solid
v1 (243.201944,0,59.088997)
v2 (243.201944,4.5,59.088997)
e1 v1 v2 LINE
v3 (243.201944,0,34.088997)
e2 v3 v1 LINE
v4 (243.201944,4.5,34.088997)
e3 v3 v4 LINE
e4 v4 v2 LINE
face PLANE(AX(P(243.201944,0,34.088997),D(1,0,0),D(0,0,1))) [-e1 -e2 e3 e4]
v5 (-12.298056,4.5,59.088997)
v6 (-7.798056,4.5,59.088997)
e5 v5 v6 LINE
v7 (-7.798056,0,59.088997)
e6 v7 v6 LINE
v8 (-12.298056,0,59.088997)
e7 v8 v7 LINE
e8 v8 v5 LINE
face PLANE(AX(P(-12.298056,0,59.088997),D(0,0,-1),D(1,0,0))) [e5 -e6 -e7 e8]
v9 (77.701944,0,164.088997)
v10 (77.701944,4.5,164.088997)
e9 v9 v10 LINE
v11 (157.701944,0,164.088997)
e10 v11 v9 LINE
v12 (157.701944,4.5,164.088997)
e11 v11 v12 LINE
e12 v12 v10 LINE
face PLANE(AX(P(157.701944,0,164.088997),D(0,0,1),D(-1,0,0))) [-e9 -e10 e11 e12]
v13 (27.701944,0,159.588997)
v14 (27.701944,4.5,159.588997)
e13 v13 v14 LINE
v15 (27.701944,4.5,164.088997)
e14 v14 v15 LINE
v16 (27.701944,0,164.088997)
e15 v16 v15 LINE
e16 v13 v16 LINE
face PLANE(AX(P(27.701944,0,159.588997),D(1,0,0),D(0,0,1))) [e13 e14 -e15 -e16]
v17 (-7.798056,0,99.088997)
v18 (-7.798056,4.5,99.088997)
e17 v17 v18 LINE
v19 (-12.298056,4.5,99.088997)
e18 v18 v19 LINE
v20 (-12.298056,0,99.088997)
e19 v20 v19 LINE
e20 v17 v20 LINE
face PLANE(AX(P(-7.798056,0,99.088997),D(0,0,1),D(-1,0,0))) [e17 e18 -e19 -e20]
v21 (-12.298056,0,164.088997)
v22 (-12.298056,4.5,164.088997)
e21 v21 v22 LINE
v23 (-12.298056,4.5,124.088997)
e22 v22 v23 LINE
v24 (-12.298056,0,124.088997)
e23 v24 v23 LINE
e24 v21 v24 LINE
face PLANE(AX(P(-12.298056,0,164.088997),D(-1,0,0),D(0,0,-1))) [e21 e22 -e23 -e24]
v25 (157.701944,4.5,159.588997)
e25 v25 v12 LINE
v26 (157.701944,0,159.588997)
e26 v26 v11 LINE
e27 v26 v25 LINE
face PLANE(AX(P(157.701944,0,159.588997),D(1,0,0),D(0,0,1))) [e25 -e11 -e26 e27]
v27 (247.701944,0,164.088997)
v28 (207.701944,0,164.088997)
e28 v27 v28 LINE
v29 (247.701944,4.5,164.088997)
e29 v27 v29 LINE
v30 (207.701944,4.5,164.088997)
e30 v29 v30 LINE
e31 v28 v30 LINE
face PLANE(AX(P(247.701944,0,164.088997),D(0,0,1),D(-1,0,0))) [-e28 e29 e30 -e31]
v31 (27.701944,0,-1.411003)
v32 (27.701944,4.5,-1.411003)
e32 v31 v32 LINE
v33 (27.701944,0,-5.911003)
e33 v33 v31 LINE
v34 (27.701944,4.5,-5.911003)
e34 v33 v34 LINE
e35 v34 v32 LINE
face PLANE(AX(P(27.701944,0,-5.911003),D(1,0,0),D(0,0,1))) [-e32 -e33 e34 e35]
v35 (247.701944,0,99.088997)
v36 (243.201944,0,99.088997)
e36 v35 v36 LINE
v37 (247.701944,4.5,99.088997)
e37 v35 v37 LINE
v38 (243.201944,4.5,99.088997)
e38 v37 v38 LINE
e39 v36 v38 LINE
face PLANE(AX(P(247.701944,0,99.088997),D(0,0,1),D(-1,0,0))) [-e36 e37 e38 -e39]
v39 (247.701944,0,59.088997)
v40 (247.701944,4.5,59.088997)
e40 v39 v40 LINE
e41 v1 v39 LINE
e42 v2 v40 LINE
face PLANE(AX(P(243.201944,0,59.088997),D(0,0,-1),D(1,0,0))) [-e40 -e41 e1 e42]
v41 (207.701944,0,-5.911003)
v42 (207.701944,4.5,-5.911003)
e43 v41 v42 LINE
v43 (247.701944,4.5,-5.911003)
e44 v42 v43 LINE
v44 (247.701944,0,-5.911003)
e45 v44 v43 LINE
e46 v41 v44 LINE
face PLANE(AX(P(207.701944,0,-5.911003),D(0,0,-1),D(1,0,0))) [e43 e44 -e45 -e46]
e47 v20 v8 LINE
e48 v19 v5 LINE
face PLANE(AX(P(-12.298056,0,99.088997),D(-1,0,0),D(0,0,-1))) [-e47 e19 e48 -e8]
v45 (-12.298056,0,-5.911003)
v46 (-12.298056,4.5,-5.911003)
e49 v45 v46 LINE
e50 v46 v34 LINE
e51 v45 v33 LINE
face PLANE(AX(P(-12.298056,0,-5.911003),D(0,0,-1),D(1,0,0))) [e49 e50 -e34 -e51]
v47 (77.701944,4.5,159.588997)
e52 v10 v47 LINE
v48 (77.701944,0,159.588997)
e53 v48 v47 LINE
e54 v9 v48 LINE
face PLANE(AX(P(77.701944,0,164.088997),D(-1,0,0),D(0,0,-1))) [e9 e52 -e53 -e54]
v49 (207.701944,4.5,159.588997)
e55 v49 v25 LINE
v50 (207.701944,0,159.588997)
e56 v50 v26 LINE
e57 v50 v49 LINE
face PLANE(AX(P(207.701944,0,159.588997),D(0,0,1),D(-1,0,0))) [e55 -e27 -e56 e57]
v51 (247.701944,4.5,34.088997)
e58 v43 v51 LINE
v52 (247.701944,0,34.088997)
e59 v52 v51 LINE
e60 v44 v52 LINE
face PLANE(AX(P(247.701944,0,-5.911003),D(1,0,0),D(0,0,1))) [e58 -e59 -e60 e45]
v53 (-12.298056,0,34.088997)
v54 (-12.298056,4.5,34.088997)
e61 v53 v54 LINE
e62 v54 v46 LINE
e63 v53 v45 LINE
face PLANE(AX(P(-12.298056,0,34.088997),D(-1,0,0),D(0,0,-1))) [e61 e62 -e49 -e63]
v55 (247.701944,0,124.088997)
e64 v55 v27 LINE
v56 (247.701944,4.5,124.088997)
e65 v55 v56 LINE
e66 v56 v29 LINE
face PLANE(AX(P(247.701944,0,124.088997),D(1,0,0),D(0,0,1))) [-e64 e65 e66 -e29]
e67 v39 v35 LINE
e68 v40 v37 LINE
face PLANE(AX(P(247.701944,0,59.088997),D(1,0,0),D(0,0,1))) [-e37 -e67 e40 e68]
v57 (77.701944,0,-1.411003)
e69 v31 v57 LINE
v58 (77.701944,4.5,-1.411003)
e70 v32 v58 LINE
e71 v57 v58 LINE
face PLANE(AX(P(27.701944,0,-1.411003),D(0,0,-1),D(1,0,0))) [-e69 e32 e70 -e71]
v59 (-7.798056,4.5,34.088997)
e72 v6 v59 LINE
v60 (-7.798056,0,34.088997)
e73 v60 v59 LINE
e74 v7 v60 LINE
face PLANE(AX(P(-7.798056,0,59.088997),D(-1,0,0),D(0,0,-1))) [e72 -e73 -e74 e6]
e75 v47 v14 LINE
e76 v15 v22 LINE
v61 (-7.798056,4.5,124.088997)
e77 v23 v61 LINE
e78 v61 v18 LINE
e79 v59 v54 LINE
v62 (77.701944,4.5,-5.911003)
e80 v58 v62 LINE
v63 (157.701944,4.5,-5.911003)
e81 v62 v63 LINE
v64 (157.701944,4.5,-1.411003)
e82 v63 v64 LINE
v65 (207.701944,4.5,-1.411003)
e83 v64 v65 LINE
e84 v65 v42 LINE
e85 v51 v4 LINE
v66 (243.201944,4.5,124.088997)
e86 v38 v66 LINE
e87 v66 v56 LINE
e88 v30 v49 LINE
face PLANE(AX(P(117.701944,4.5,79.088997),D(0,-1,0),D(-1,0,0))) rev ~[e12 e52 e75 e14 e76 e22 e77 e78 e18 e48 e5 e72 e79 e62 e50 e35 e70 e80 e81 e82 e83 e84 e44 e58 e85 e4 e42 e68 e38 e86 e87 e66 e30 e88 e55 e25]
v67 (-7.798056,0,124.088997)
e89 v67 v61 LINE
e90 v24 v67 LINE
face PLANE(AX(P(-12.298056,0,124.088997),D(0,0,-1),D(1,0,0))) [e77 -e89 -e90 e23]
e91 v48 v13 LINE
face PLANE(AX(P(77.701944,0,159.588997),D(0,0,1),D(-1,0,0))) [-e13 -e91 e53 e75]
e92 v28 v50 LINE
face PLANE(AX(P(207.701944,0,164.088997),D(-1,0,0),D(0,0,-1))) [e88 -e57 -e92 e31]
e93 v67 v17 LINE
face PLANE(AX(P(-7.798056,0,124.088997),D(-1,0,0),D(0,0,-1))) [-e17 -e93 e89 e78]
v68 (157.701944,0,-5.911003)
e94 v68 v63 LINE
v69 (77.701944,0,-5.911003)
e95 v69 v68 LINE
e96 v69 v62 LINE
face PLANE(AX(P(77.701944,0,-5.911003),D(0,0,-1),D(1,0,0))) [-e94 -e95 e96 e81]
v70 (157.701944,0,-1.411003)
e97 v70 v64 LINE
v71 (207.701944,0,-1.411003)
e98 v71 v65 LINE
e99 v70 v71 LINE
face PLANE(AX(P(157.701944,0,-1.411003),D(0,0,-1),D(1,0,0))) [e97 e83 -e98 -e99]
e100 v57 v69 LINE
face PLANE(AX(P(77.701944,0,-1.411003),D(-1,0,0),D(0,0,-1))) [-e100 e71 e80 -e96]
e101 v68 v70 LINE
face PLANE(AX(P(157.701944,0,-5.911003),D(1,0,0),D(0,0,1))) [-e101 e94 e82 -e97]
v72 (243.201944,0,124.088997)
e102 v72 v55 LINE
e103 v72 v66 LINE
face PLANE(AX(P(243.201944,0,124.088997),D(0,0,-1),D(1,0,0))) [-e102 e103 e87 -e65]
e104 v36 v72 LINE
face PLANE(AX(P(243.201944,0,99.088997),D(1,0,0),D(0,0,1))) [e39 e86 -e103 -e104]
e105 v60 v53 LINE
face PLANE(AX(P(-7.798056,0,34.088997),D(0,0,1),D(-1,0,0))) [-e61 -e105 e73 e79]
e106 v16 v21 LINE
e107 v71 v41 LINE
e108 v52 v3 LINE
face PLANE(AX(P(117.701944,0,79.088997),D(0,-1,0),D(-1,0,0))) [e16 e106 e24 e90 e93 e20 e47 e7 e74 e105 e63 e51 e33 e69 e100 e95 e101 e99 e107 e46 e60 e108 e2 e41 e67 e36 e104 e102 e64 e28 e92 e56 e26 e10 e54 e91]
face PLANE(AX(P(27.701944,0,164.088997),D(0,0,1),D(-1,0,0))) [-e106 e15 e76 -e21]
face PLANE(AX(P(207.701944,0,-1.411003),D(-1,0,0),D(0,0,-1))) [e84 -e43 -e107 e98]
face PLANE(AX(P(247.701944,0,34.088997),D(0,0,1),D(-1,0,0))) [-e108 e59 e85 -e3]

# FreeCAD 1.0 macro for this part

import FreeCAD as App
import Part
import Sketcher
from FreeCAD import Vector


def add_polygon(sketch, points):
    """Adds a closed chain of lines whose ends are joined by coincident constraints."""
    first, n = sketch.GeometryCount, len(points)
    for a, b in zip(points, points[1:] + points[:1]):
        sketch.addGeometry(Part.LineSegment(App.Vector(*a, 0), App.Vector(*b, 0)), False)
    for i in range(n):
        sketch.addConstraint(Sketcher.Constraint("Coincident", first + i, 2, first + (i + 1) % n, 1))

doc = App.newDocument("Part")
body = doc.addObject("PartDesign::Body", "Body")

# Sketch on XZ plane
sketch1 = body.newObject("Sketcher::SketchObject", "Sketch")
sketch1.AttachmentSupport = (doc.getObject("XZ_Plane"), [""])
sketch1.MapMode = "FlatFace"
add_polygon(sketch1, [(27.7, -5.9), (-12.3, -5.9), (-12.3, 34.1), (-7.8, 34.1), (-7.8, 59.1), (-12.3, 59.1), (-12.3, 99.1), (-7.8, 99.1), (-7.8, 124.1), (-12.3, 124.1), (-12.3, 164.1), (27.7, 164.1), (27.7, 159.6), (77.7, 159.6), (77.7, 164.1), (157.7, 164.1), (157.7, 159.6), (207.7, 159.6), (207.7, 164.1), (247.7, 164.1), (247.7, 124.1), (243.2, 124.1), (243.2, 99.1), (247.7, 99.1), (247.7, 59.1), (243.2, 59.1), (243.2, 34.1), (247.7, 34.1), (247.7, -5.9), (207.7, -5.9), (207.7, -1.4), (157.7, -1.4), (157.7, -5.9), (77.7, -5.9), (77.7, -1.4), (27.7, -1.4)])  # lines 0-35
sketch1.addConstraint([
    Sketcher.Constraint("Horizontal", 0),
    Sketcher.Constraint("Vertical", 1),
    Sketcher.Constraint("Horizontal", 2),
    Sketcher.Constraint("Vertical", 3),
    Sketcher.Constraint("Horizontal", 4),
    Sketcher.Constraint("Vertical", 5),
    Sketcher.Constraint("Horizontal", 6),
    Sketcher.Constraint("Vertical", 7),
    Sketcher.Constraint("Horizontal", 8),
    Sketcher.Constraint("Vertical", 9),
    Sketcher.Constraint("Horizontal", 10),
    Sketcher.Constraint("Vertical", 11),
    Sketcher.Constraint("Horizontal", 12),
    Sketcher.Constraint("Vertical", 13),
    Sketcher.Constraint("Horizontal", 14),
    Sketcher.Constraint("Vertical", 15),
    Sketcher.Constraint("Horizontal", 16),
    Sketcher.Constraint("Vertical", 17),
    Sketcher.Constraint("Horizontal", 18),
    Sketcher.Constraint("Vertical", 19),
    Sketcher.Constraint("Horizontal", 20),
    Sketcher.Constraint("Vertical", 21),
    Sketcher.Constraint("Horizontal", 22),
    Sketcher.Constraint("Vertical", 23),
    Sketcher.Constraint("Horizontal", 24),
    Sketcher.Constraint("Vertical", 25),
    Sketcher.Constraint("Horizontal", 26),
    Sketcher.Constraint("Vertical", 27),
    Sketcher.Constraint("Horizontal", 28),
    Sketcher.Constraint("Vertical", 29),
    Sketcher.Constraint("Horizontal", 30),
    Sketcher.Constraint("Vertical", 31),
    Sketcher.Constraint("Horizontal", 32),
    Sketcher.Constraint("Vertical", 33),
    Sketcher.Constraint("Horizontal", 34),
    Sketcher.Constraint("Vertical", 35),
    Sketcher.Constraint("Horizontal", 10, 2, 13, 2),
    Sketcher.Constraint("Horizontal", 12, 2, 15, 2),
    Sketcher.Constraint("Horizontal", 14, 2, 17, 2),
    Sketcher.Constraint("Horizontal", 8, 2, 19, 2),
    Sketcher.Constraint("Horizontal", 6, 2, 21, 2),
    Sketcher.Constraint("Horizontal", 4, 2, 23, 2),
    Sketcher.Constraint("Horizontal", 2, 2, 25, 2),
    Sketcher.Constraint("Horizontal", 0, 2, 27, 2),
    Sketcher.Constraint("Horizontal", 28, 2, 31, 2),
    Sketcher.Constraint("Horizontal", 30, 2, 33, 2),
    Sketcher.Constraint("Vertical", 1, 2, 4, 2),
    Sketcher.Constraint("Vertical", 3, 2, 6, 2),
    Sketcher.Constraint("Vertical", 5, 2, 8, 2),
    Sketcher.Constraint("Vertical", 19, 2, 22, 2),
    Sketcher.Constraint("Vertical", 21, 2, 24, 2),
    Sketcher.Constraint("Vertical", 23, 2, 26, 2),
    Sketcher.Constraint("Vertical", 17, 2, 28, 2),
    Sketcher.Constraint("Vertical", 15, 2, 30, 2),
    Sketcher.Constraint("Vertical", 13, 2, 32, 2),
    Sketcher.Constraint("Vertical", 11, 2, 34, 2),
    Sketcher.Constraint("Equal", 12, 16),
    Sketcher.Constraint("Equal", 10, 18),
    Sketcher.Constraint("Equal", 8, 20),
    Sketcher.Constraint("Equal", 28, 1),
    Sketcher.Constraint("Equal", 1, 5),
    Sketcher.Constraint("Equal", 3, 7),
    Sketcher.Constraint("Equal", 5, 9),
    Sketcher.Constraint("Equal", 26, 11),
    Sketcher.Constraint("Equal", 17, 29),
    Sketcher.Constraint("DistanceX", 0, 2, 0, 1, 40.0),
    Sketcher.Constraint("DistanceX", 12, 1, 12, 2, 50.0),
    Sketcher.Constraint("DistanceX", 14, 1, 14, 2, 80.0),
    Sketcher.Constraint("DistanceY", 3, 1, 3, 2, 25.0),
    Sketcher.Constraint("DistanceX", 2, 1, 2, 2, 4.5),
    Sketcher.Constraint("DistanceX", 0, 2, -1, 1, 12.298056),
    Sketcher.Constraint("DistanceY", 0, 2, -1, 1, 5.911003),
])
pad1 = body.newObject("PartDesign::Pad", "Pad")
pad1.Profile = sketch1
pad1.Length = 4.5
pad1.Reversed = True

doc.recompute()
